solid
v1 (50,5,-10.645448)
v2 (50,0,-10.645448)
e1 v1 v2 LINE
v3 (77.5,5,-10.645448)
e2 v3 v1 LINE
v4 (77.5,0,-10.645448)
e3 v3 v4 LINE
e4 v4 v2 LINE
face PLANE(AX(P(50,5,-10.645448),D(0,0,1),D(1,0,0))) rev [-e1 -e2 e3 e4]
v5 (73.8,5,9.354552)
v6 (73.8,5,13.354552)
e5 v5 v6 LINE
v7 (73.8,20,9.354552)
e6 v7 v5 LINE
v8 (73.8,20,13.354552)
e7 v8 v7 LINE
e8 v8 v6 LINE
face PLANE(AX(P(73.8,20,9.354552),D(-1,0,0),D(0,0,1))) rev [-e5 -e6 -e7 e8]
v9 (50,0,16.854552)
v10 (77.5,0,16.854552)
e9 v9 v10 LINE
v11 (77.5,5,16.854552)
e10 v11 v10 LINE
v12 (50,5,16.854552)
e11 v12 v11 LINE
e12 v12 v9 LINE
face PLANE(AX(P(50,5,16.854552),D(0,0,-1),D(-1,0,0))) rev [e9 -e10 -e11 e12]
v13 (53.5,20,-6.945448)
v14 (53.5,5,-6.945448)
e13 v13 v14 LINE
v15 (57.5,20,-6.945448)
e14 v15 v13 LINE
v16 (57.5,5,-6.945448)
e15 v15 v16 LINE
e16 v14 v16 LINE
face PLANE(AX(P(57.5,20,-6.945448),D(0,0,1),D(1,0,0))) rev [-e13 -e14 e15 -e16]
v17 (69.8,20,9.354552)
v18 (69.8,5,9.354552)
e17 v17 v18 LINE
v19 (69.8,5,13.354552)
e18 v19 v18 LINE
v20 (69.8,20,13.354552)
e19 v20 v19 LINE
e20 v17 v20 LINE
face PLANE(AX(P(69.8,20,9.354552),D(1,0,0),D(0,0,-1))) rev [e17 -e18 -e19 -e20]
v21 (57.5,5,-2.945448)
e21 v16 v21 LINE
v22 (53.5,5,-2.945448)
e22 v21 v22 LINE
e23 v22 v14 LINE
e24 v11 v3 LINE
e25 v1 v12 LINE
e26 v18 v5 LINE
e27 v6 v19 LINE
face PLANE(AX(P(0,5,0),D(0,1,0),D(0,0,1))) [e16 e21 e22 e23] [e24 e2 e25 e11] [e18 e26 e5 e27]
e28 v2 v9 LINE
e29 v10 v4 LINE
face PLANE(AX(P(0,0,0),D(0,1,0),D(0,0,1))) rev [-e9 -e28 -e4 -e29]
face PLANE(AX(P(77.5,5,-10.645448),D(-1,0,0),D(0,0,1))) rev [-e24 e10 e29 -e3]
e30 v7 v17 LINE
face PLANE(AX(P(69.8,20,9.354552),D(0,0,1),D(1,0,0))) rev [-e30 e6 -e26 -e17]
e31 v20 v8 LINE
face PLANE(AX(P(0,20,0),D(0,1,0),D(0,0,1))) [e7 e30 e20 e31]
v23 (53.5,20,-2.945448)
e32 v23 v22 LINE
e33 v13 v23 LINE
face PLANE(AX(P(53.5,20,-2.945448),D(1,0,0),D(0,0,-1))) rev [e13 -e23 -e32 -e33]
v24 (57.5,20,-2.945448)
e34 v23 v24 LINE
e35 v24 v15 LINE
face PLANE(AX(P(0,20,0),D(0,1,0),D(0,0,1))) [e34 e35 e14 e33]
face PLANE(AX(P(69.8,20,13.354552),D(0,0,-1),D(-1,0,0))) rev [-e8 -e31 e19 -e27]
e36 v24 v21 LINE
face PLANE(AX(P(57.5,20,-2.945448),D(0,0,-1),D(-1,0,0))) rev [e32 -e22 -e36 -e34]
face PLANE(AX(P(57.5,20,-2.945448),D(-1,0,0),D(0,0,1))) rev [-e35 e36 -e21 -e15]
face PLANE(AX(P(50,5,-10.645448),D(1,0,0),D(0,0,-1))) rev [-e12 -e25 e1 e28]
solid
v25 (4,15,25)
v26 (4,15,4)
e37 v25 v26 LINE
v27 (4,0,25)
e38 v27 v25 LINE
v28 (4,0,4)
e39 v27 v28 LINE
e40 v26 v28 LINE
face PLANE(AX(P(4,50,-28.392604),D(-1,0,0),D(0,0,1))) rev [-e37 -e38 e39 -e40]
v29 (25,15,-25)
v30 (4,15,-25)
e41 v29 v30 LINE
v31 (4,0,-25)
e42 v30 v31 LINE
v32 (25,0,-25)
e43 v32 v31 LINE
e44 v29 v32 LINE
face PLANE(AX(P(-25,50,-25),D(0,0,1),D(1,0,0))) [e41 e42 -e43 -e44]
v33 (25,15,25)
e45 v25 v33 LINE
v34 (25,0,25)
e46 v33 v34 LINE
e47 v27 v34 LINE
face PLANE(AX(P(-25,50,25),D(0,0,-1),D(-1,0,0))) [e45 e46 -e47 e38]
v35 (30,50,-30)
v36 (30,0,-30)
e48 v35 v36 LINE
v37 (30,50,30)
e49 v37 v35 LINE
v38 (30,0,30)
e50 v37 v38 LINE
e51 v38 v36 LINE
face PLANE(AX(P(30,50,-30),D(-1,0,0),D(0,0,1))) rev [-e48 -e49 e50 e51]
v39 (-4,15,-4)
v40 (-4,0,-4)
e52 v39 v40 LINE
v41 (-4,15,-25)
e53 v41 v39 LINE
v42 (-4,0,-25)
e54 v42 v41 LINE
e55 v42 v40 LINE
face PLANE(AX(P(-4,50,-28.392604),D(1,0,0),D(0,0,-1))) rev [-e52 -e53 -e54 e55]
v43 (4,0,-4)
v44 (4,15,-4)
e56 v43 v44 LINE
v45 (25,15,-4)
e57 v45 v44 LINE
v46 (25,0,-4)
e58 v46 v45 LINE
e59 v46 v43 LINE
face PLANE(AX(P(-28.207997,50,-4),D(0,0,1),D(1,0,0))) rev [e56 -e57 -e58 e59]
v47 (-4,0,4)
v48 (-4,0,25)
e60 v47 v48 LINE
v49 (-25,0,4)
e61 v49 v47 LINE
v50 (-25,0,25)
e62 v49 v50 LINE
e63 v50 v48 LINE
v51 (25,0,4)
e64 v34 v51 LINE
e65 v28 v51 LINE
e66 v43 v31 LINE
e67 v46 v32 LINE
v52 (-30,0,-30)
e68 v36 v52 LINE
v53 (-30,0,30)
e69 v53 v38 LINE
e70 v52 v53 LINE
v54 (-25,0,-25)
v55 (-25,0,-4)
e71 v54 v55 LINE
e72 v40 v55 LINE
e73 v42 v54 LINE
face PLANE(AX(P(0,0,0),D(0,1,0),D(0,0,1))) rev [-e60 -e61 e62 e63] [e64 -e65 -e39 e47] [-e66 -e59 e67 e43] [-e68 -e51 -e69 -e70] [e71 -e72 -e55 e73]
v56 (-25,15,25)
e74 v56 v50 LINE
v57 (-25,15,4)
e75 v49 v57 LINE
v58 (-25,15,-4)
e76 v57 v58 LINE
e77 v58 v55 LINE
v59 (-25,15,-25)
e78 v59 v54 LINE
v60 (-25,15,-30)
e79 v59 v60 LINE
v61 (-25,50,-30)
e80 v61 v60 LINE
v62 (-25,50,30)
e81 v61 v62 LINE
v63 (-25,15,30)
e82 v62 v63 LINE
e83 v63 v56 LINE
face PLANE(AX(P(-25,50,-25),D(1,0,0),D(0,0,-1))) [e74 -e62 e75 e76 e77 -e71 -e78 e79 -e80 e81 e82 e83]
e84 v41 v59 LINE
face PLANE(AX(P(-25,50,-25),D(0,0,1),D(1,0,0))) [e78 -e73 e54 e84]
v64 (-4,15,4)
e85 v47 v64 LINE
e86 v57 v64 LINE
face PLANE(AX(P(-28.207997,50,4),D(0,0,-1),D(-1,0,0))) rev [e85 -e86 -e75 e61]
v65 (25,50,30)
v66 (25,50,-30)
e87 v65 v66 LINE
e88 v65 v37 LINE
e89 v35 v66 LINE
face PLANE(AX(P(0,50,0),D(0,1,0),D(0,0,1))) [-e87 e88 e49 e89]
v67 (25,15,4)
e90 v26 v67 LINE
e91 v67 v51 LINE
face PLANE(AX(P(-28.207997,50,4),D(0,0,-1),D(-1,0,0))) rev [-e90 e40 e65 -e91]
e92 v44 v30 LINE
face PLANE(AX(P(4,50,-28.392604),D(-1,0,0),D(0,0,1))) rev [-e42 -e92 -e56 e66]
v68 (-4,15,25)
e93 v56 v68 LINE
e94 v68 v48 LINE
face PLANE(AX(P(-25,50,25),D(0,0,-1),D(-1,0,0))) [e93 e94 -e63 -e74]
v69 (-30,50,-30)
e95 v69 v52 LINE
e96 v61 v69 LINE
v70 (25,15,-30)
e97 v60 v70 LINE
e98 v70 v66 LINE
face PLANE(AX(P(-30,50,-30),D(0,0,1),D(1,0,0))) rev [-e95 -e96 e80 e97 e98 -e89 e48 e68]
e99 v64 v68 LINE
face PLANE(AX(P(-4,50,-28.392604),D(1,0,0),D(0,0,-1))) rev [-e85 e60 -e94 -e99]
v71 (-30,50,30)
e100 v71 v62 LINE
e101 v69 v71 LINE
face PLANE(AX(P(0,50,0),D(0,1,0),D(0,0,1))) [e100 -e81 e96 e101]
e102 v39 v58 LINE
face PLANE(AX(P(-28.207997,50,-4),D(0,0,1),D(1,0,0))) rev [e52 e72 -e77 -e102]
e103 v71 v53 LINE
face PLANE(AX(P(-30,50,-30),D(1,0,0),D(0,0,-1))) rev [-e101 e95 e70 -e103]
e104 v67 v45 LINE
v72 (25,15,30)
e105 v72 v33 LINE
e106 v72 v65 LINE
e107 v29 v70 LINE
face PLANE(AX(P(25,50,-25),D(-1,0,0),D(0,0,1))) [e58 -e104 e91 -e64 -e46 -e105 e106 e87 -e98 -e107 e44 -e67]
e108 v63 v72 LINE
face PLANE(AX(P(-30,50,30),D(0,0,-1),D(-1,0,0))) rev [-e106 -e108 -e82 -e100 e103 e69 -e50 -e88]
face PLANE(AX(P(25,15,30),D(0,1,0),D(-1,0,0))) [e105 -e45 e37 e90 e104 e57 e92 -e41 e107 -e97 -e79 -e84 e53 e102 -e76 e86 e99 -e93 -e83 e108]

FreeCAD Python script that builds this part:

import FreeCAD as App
import Part
import Sketcher
from FreeCAD import Vector


def add_polygon(sketch, points):
    """Adds a closed chain of lines whose ends are joined by coincident constraints."""
    first, n = sketch.GeometryCount, len(points)
    for a, b in zip(points, points[1:] + points[:1]):
        sketch.addGeometry(Part.LineSegment(App.Vector(*a, 0), App.Vector(*b, 0)), False)
    for i in range(n):
        sketch.addConstraint(Sketcher.Constraint("Coincident", first + i, 2, first + (i + 1) % n, 1))

doc = App.newDocument("Part")
body = doc.addObject("PartDesign::Body", "Body")

sketch1 = body.newObject("Sketcher::SketchObject", "Sketch")
sketch1.AttachmentSupport = (doc.getObject("XZ_Plane"), [""])
sketch1.MapMode = "FlatFace"
add_polygon(sketch1, [(-30, -30), (-30, 30), (30, 30), (30, -30)])
sketch1.addConstraint([
    Sketcher.Constraint("Vertical", 0),
    Sketcher.Constraint("Horizontal", 1),
    Sketcher.Constraint("Vertical", 2),
    Sketcher.Constraint("Horizontal", 3),
    Sketcher.Constraint("Symmetric", 0, 2, 2, 2, -1, 1),
    Sketcher.Constraint("Equal", 3, 0),
    Sketcher.Constraint("DistanceX", 1, 1, 1, 2, 60.0),
])
pad1 = body.newObject("PartDesign::Pad", "Pad")
pad1.Profile = sketch1
pad1.Length = 50
pad1.Reversed = True

sketch2 = body.newObject("Sketcher::SketchObject", "Sketch001")
sketch2.AttachmentSupport = (doc.getObject("XZ_Plane"), [""])
sketch2.MapMode = "FlatFace"
add_polygon(sketch2, [(-25, -25), (-25, 25), (25, 25), (25, -25)])
sketch2.addConstraint([
    Sketcher.Constraint("Vertical", 0),
    Sketcher.Constraint("Horizontal", 1),
    Sketcher.Constraint("Vertical", 2),
    Sketcher.Constraint("Horizontal", 3),
    Sketcher.Constraint("Symmetric", 0, 2, 2, 2, -1, 1),
    Sketcher.Constraint("Equal", 3, 0),
    Sketcher.Constraint("DistanceX", 1, 1, 1, 2, 50.0),
])
pocket1 = body.newObject("PartDesign::Pocket", "Pocket")
pocket1.Profile = sketch2
pocket1.Length = 50

sketch3 = body.newObject("Sketcher::SketchObject", "Sketch002")
sketch3.AttachmentSupport = (doc.getObject("XZ_Plane"), [""])
sketch3.MapMode = "FlatFace"
add_polygon(sketch3, [(-4, -28.392604), (-4, 28.392604), (4, 28.392604), (4, -28.392604)])
sketch3.addConstraint([
    Sketcher.Constraint("Vertical", 0),
    Sketcher.Constraint("Horizontal", 1),
    Sketcher.Constraint("Vertical", 2),
    Sketcher.Constraint("Horizontal", 3),
    Sketcher.Constraint("Symmetric", 0, 2, 2, 2, -1, 1),
    Sketcher.Constraint("DistanceX", 1, 1, 1, 2, 8.0),
    Sketcher.Constraint("DistanceY", 0, 1, 0, 2, 56.785208),
])
pad2 = body.newObject("PartDesign::Pad", "Pad001")
pad2.Profile = sketch3
pad2.Length = 50
pad2.Reversed = True

sketch4 = body.newObject("Sketcher::SketchObject", "Sketch003")
sketch4.AttachmentSupport = (doc.getObject("XZ_Plane"), [""])
sketch4.MapMode = "FlatFace"
add_polygon(sketch4, [(-28.207997, -4), (-28.207997, 4), (28.207997, 4), (28.207997, -4)])
sketch4.addConstraint([
    Sketcher.Constraint("Vertical", 0),
    Sketcher.Constraint("Horizontal", 1),
    Sketcher.Constraint("Vertical", 2),
    Sketcher.Constraint("Horizontal", 3),
    Sketcher.Constraint("Symmetric", 0, 2, 2, 2, -1, 1),
    Sketcher.Constraint("DistanceY", 0, 1, 0, 2, 8.0),
    Sketcher.Constraint("DistanceX", 1, 1, 1, 2, 56.415993),
])
pad3 = body.newObject("PartDesign::Pad", "Pad002")
pad3.Profile = sketch4
pad3.Length = 50
pad3.Reversed = True

sketch5 = body.newObject("Sketcher::SketchObject", "Sketch004")
sketch5.AttachmentSupport = (doc.getObject("XY_Plane"), [""])
sketch5.MapMode = "FlatFace"
add_polygon(sketch5, [(-25, 50), (-25, 15), (25, 15), (25, 50)])
sketch5.addConstraint([
    Sketcher.Constraint("Vertical", 0),
    Sketcher.Constraint("Horizontal", 1),
    Sketcher.Constraint("Vertical", 2),
    Sketcher.Constraint("Horizontal", 3),
    Sketcher.Constraint("DistanceX", 1, 1, 1, 2, 50.0),
    Sketcher.Constraint("DistanceY", 0, 2, 0, 1, 35.0),
    Sketcher.Constraint("DistanceX", 0, 2, -1, 1, 25.0),
    Sketcher.Constraint("DistanceY", -1, 1, 0, 2, 15.0),
])
pocket2 = body.newObject("PartDesign::Pocket", "Pocket001")
pocket2.Profile = sketch5
pocket2.Type = "ThroughAll"
pocket2.Midplane = True
body2 = doc.addObject("PartDesign::Body", "Body001")

sketch6 = body2.newObject("Sketcher::SketchObject", "Sketch005")
sketch6.AttachmentSupport = (doc.getObject("XZ_Plane001"), [""])
sketch6.MapMode = "FlatFace"
add_polygon(sketch6, [(50, -10.645448), (50, 16.854552), (77.5, 16.854552), (77.5, -10.645448)])
sketch6.addConstraint([
    Sketcher.Constraint("Vertical", 0),
    Sketcher.Constraint("Horizontal", 1),
    Sketcher.Constraint("Vertical", 2),
    Sketcher.Constraint("Horizontal", 3),
    Sketcher.Constraint("Equal", 3, 0),
    Sketcher.Constraint("DistanceX", 1, 1, 1, 2, 27.5),
    Sketcher.Constraint("DistanceX", -1, 1, 0, 2, 50.0),
    Sketcher.Constraint("DistanceY", -1, 1, 0, 2, 16.854552),
])
pad4 = body2.newObject("PartDesign::Pad", "Pad003")
pad4.Profile = sketch6
pad4.Length = 5
pad4.Reversed = True

sketch7 = body2.newObject("Sketcher::SketchObject", "Sketch006")
sketch7.AttachmentSupport = (doc.getObject("XZ_Plane001"), [""])
sketch7.MapMode = "FlatFace"
add_polygon(sketch7, [(53.5, -6.945448), (53.5, -2.945448), (57.5, -2.945448), (57.5, -6.945448)])
sketch7.addConstraint([
    Sketcher.Constraint("Vertical", 0),
    Sketcher.Constraint("Horizontal", 1),
    Sketcher.Constraint("Vertical", 2),
    Sketcher.Constraint("Horizontal", 3),
    Sketcher.Constraint("Equal", 3, 0),
    Sketcher.Constraint("DistanceX", 1, 1, 1, 2, 4.0),
    Sketcher.Constraint("DistanceX", -1, 1, 0, 2, 53.5),
    Sketcher.Constraint("DistanceY", 0, 2, -1, 1, 2.945448),
])
pad5 = body2.newObject("PartDesign::Pad", "Pad004")
pad5.Profile = sketch7
pad5.Length = 20
pad5.Reversed = True

sketch8 = body2.newObject("Sketcher::SketchObject", "Sketch007")
sketch8.AttachmentSupport = (doc.getObject("XZ_Plane001"), [""])
sketch8.MapMode = "FlatFace"
add_polygon(sketch8, [(69.8, 9.354552), (69.8, 13.354552), (73.8, 13.354552), (73.8, 9.354552)])
sketch8.addConstraint([
    Sketcher.Constraint("Vertical", 0),
    Sketcher.Constraint("Horizontal", 1),
    Sketcher.Constraint("Vertical", 2),
    Sketcher.Constraint("Horizontal", 3),
    Sketcher.Constraint("Equal", 3, 0),
    Sketcher.Constraint("DistanceX", 1, 1, 1, 2, 4.0),
    Sketcher.Constraint("DistanceX", -1, 1, 0, 2, 69.8),
    Sketcher.Constraint("DistanceY", -1, 1, 0, 2, 13.354552),
])
pad6 = body2.newObject("PartDesign::Pad", "Pad005")
pad6.Profile = sketch8
pad6.Length = 20
pad6.Reversed = True

doc.recompute()
